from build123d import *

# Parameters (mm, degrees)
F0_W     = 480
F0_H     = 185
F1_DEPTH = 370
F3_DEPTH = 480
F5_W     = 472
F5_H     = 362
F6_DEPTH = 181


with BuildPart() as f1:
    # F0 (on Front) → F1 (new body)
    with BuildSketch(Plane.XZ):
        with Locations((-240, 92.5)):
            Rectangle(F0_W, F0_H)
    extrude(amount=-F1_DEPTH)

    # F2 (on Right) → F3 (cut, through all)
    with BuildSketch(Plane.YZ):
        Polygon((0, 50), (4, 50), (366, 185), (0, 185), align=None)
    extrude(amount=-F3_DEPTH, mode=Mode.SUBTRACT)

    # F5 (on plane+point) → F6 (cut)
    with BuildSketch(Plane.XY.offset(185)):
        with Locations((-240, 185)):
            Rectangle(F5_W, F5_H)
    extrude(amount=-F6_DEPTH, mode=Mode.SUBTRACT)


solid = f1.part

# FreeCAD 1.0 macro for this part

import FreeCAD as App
import Part
import Sketcher

V = App.Vector

doc = App.newDocument("Part")
body = doc.addObject("PartDesign::Body", "Body")

# Sketch on XZ plane
sketch1 = doc.addObject("Sketcher::SketchObject", "Sketch")
body.addObject(sketch1)
sketch1.AttachmentSupport = (doc.XZ_Plane, [""])
sketch1.MapMode = "FlatFace"
sketch1.addGeometry([
    Part.LineSegment(V(-480, 185, 0), V(-480, 0, 0)),
    Part.LineSegment(V(-480, 0, 0), V(0, 0, 0)),
    Part.LineSegment(V(0, 0, 0), V(0, 185, 0)),
    Part.LineSegment(V(0, 185, 0), V(-480, 185, 0)),
], False)
sketch1.addConstraint([
    Sketcher.Constraint("Coincident", 0, 2, 1, 1),
    Sketcher.Constraint("Coincident", 1, 2, 2, 1),
    Sketcher.Constraint("Coincident", 2, 2, 3, 1),
    Sketcher.Constraint("Coincident", 3, 2, 0, 1),
    Sketcher.Constraint("Vertical", 0),
    Sketcher.Constraint("Horizontal", 1),
    Sketcher.Constraint("Vertical", 2),
    Sketcher.Constraint("Horizontal", 3),
    Sketcher.Constraint("Coincident", 1, 2, -1, 1),
    Sketcher.Constraint("DistanceX", 1, 1, 1, 2, 480.0),
    Sketcher.Constraint("DistanceY", 0, 2, 0, 1, 185.0),
])
pad1 = doc.addObject("PartDesign::Pad", "Pad")
body.addObject(pad1)
pad1.Profile = sketch1
pad1.Length = 370
pad1.Reversed = True

# Sketch on YZ plane
sketch2 = doc.addObject("Sketcher::SketchObject", "Sketch001")
body.addObject(sketch2)
sketch2.AttachmentSupport = (doc.YZ_Plane, [""])
sketch2.MapMode = "FlatFace"
sketch2.addGeometry([
    Part.LineSegment(V(0, 50, 0), V(4, 50, 0)),
    Part.LineSegment(V(4, 50, 0), V(366, 185, 0)),
    Part.LineSegment(V(366, 185, 0), V(0, 185, 0)),
    Part.LineSegment(V(0, 185, 0), V(0, 50, 0)),
], False)
sketch2.addConstraint([
    Sketcher.Constraint("Coincident", 0, 2, 1, 1),
    Sketcher.Constraint("Coincident", 1, 2, 2, 1),
    Sketcher.Constraint("Coincident", 2, 2, 3, 1),
    Sketcher.Constraint("Coincident", 3, 2, 0, 1),
    Sketcher.Constraint("Horizontal", 0),
    Sketcher.Constraint("Horizontal", 2),
    Sketcher.Constraint("Vertical", 3),
    Sketcher.Constraint("PointOnObject", 2, 2, -2),
    Sketcher.Constraint("DistanceX", 0, 1, 0, 2, 4.0),
    Sketcher.Constraint("DistanceX", 2, 2, 2, 1, 366.0),
    Sketcher.Constraint("DistanceY", 3, 2, 3, 1, 135.0),
    Sketcher.Constraint("DistanceY", -1, 1, 0, 2, 50.0),
])
pocket1 = doc.addObject("PartDesign::Pocket", "Pocket")
body.addObject(pocket1)
pocket1.Profile = sketch2
pocket1.Type = "ThroughAll"

# Sketch on XY plane
sketch3 = doc.addObject("Sketcher::SketchObject", "Sketch002")
body.addObject(sketch3)
sketch3.AttachmentSupport = (doc.XY_Plane, [""])
sketch3.MapMode = "FlatFace"
sketch3.AttachmentOffset = App.Placement(V(0, 0, 185), App.Rotation())
sketch3.addGeometry([
    Part.LineSegment(V(-476, 366, 0), V(-476, 4, 0)),
    Part.LineSegment(V(-476, 4, 0), V(-4, 4, 0)),
    Part.LineSegment(V(-4, 4, 0), V(-4, 366, 0)),
    Part.LineSegment(V(-4, 366, 0), V(-476, 366, 0)),
], False)
sketch3.addConstraint([
    Sketcher.Constraint("Coincident", 0, 2, 1, 1),
    Sketcher.Constraint("Coincident", 1, 2, 2, 1),
    Sketcher.Constraint("Coincident", 2, 2, 3, 1),
    Sketcher.Constraint("Coincident", 3, 2, 0, 1),
    Sketcher.Constraint("Vertical", 0),
    Sketcher.Constraint("Horizontal", 1),
    Sketcher.Constraint("Vertical", 2),
    Sketcher.Constraint("Horizontal", 3),
    Sketcher.Constraint("DistanceX", 1, 1, 1, 2, 472.0),
    Sketcher.Constraint("DistanceY", 0, 2, 0, 1, 362.0),
    Sketcher.Constraint("DistanceX", 0, 2, -1, 1, 476.0),
    Sketcher.Constraint("DistanceY", -1, 1, 0, 2, 4.0),
])
pocket2 = doc.addObject("PartDesign::Pocket", "Pocket001")
body.addObject(pocket2)
pocket2.Profile = sketch3
pocket2.Length = 181

doc.recompute()
